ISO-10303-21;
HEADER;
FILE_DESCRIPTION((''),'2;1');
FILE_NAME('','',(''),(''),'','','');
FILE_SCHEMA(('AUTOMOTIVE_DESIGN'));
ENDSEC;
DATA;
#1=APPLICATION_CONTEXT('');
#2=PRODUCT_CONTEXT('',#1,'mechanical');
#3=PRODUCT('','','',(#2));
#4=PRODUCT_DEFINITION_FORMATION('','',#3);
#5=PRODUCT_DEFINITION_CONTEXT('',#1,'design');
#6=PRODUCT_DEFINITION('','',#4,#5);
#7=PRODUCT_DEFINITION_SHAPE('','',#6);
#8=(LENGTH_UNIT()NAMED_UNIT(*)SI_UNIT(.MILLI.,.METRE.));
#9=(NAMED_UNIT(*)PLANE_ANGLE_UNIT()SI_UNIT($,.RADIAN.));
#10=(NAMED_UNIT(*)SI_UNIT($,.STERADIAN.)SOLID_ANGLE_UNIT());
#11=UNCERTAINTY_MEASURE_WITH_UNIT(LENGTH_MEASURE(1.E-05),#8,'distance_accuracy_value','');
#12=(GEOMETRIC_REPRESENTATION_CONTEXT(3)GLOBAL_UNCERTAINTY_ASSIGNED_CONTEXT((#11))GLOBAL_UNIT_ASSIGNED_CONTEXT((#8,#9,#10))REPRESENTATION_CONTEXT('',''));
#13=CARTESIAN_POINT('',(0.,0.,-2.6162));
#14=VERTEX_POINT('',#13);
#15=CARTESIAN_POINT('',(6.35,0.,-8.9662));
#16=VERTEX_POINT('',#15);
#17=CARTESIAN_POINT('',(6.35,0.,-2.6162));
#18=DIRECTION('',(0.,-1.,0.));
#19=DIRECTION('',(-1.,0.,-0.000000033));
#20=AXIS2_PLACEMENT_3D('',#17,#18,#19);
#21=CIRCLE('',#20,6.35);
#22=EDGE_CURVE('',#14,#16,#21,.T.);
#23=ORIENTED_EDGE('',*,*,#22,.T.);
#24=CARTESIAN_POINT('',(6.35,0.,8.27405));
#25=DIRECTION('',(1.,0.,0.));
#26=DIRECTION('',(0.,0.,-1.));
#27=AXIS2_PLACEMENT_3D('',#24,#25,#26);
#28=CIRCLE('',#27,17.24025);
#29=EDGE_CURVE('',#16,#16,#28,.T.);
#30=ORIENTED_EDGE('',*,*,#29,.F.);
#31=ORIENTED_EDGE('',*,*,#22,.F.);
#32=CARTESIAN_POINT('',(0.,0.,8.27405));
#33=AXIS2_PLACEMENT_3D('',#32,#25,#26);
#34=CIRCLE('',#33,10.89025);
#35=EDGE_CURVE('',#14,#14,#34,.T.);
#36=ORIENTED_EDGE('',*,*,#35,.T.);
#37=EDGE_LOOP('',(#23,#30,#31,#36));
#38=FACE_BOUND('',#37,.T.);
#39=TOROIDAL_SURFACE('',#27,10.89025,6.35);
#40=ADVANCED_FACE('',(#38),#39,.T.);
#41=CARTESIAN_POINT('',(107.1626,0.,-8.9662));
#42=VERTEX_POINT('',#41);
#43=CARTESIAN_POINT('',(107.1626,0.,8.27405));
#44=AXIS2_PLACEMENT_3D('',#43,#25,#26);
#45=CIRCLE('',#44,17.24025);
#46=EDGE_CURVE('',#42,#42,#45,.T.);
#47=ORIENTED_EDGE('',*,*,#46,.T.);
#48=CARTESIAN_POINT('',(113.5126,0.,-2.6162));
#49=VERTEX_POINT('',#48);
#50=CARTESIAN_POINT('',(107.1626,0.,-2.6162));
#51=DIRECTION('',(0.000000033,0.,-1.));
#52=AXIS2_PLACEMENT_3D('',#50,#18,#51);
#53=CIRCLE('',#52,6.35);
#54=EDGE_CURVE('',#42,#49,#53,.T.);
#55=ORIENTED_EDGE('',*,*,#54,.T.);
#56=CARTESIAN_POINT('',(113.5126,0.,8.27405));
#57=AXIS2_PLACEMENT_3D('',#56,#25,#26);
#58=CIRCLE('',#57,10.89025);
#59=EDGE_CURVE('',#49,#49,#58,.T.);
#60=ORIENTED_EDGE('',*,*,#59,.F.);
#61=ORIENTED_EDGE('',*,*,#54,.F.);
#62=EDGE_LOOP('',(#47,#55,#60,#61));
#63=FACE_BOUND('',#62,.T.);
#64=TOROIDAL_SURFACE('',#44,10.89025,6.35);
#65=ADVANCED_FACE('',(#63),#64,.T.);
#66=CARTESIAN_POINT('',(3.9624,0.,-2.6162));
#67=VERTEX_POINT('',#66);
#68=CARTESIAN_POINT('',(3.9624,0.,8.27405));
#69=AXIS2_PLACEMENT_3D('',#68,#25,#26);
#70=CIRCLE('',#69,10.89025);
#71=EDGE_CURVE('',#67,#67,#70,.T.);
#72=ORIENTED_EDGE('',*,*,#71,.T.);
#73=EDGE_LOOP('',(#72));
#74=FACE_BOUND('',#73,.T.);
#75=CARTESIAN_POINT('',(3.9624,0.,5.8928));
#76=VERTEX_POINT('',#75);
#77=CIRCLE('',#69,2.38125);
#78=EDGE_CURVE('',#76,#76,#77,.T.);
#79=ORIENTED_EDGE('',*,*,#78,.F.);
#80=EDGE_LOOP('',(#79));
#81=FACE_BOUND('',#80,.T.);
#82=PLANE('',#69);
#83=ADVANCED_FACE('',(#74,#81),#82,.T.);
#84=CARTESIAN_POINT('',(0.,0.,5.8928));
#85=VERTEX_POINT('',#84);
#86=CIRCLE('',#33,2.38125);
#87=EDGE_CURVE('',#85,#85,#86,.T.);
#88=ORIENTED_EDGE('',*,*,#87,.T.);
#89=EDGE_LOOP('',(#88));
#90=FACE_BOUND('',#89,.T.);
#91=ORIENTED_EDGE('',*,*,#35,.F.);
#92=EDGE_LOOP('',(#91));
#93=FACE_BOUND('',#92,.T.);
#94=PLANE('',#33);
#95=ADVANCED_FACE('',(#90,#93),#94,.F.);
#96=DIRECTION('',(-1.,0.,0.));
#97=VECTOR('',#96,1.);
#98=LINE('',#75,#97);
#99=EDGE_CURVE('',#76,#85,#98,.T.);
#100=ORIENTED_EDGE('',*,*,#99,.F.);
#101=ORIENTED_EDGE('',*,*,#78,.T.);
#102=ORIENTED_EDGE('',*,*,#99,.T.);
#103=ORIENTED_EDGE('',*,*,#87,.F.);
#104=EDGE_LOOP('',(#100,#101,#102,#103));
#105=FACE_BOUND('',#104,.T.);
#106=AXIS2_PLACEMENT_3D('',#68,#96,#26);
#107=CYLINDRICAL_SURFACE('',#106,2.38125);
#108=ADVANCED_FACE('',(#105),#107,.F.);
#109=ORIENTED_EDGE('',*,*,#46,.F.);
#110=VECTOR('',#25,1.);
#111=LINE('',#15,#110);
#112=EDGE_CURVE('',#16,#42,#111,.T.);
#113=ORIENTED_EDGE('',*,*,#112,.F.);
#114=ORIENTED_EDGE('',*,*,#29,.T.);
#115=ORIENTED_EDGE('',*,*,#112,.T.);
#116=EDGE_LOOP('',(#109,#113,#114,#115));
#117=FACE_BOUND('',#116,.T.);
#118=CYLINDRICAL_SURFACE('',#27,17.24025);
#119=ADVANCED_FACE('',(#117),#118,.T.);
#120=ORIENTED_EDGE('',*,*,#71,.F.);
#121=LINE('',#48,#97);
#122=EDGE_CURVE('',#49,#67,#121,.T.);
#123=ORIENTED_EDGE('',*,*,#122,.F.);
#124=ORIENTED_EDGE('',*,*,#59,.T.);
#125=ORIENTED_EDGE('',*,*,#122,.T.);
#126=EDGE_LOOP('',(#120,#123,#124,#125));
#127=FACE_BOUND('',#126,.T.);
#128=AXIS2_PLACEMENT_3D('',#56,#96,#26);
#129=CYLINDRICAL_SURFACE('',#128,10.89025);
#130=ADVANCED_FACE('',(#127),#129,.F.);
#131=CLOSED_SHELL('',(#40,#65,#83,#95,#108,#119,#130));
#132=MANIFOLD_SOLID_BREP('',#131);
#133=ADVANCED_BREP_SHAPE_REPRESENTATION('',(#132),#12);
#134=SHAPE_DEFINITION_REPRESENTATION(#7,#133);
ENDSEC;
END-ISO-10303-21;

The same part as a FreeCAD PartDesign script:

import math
import FreeCAD as App
import Part
import Sketcher

V = App.Vector
Q = App.Units.Quantity

doc = App.newDocument("Part")
body = doc.addObject("PartDesign::Body", "Body")

sketch1 = body.newObject("Sketcher::SketchObject", "Sketch")
sketch1.AttachmentSupport = (doc.getObject("XZ_Plane"), [""])
sketch1.MapMode = "FlatFace"
sketch1.addGeometry([
    Part.ArcOfCircle(Part.Circle(V(6.4, -2.6, 0), V(0, 0, 1), 6.4), math.radians(-180), math.radians(-90)),
    Part.LineSegment(V(6.3, -9, 0), V(107.2, -9, 0)),
    Part.ArcOfCircle(Part.Circle(V(107.2, -2.6, 0), V(0, 0, 1), 6.4), math.radians(-90), math.radians(0)),
    Part.LineSegment(V(113.5, -2.6, 0), V(4, -2.6, 0)),
    Part.LineSegment(V(4, -2.6, 0), V(4, 5.9, 0)),
    Part.LineSegment(V(4, 5.9, 0), V(0, 5.9, 0)),
    Part.LineSegment(V(0, 5.9, 0), V(0, -2.6, 0)),
], False)
sketch1.addGeometry(Part.LineSegment(V(0, 8.3, 0), V(113.5, 8.3, 0)), True)
sketch1.addConstraint([
    Sketcher.Constraint("Tangent", 0, 2, 1, 1),
    Sketcher.Constraint("Tangent", 1, 2, 2, 1),
    Sketcher.Constraint("Coincident", 2, 2, 3, 1),
    Sketcher.Constraint("Coincident", 3, 2, 4, 1),
    Sketcher.Constraint("Coincident", 4, 2, 5, 1),
    Sketcher.Constraint("Coincident", 5, 2, 6, 1),
    Sketcher.Constraint("Tangent", 6, 2, 0, 1),
    Sketcher.Constraint("Horizontal", 1),
    Sketcher.Constraint("Horizontal", 3),
    Sketcher.Constraint("Vertical", 4),
    Sketcher.Constraint("Horizontal", 5),
    Sketcher.Constraint("Vertical", 6),
    Sketcher.Constraint("Horizontal", 7),
    Sketcher.Constraint("Equal", 0, 2),
    Sketcher.Constraint("PointOnObject", 5, 2, -2),
    Sketcher.Constraint("PointOnObject", 7, 1, -2),
    Sketcher.Constraint("Horizontal", 0, 3, 2, 2),
    Sketcher.Constraint("Vertical", 2, 2, 7, 2),
    Sketcher.Constraint("Radius", 0, Q("0.25 in")),
    Sketcher.Constraint("DistanceX", 1, 1, 1, 2, Q("3.969 in")),
    Sketcher.Constraint("DistanceX", 3, 2, 3, 1, Q("4.313 in")),
    Sketcher.Constraint("DistanceY", 4, 1, 4, 2, Q("0.335 in")),
    Sketcher.Constraint("DistanceY", 0, 3, -1, 1, Q("0.103 in")),
    Sketcher.Constraint("DistanceY", 5, 2, 7, 1, Q("0.09375 in")),
])
revolution = body.newObject("PartDesign::Revolution", "Revolution")
revolution.Profile = sketch1
revolution.ReferenceAxis = (sketch1, ["Axis0"])
revolution.Angle = 360

doc.recompute()
